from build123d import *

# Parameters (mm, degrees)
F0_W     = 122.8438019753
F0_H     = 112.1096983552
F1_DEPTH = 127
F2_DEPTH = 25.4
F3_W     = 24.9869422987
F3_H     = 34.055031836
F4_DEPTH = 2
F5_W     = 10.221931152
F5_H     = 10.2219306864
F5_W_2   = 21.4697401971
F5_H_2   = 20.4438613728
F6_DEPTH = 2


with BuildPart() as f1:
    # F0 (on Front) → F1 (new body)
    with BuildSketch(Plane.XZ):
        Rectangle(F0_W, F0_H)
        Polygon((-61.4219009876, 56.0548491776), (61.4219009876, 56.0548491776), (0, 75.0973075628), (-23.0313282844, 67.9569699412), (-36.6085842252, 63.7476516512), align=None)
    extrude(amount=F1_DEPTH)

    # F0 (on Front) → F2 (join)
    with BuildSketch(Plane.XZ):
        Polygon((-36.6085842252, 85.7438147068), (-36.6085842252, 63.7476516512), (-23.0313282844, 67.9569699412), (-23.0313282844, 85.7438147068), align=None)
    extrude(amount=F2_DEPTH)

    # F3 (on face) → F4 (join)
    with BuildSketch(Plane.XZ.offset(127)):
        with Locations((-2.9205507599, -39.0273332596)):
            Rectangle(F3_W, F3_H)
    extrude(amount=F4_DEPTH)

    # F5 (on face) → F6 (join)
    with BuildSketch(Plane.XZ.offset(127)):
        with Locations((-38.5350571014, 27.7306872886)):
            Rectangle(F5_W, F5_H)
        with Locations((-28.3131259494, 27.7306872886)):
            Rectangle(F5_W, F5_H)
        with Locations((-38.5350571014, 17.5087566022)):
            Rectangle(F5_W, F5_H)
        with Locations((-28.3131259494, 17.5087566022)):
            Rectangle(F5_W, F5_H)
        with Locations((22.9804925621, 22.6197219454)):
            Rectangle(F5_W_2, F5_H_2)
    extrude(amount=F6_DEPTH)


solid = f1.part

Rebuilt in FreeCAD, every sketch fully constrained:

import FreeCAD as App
import Part
import Sketcher
Q = App.Units.Quantity


def add_polygon(sketch, points):
    """Adds a closed chain of lines whose ends are joined by coincident constraints."""
    first, n = sketch.GeometryCount, len(points)
    for a, b in zip(points, points[1:] + points[:1]):
        sketch.addGeometry(Part.LineSegment(App.Vector(*a, 0), App.Vector(*b, 0)), False)
    for i in range(n):
        sketch.addConstraint(Sketcher.Constraint("Coincident", first + i, 2, first + (i + 1) % n, 1))

doc = App.newDocument("Part")
body = doc.addObject("PartDesign::Body", "Body")

sketch1 = body.newObject("Sketcher::SketchObject", "Sketch")
sketch1.AttachmentSupport = (doc.getObject("XZ_Plane"), [""])
sketch1.MapMode = "FlatFace"
add_polygon(sketch1, [(-61, 56), (-61, -56), (61, -56), (61, 56), (0, 75), (-23, 68), (-37, 64)])
sketch1.addConstraint(Sketcher.Constraint("Vertical", 0))
sketch1.addConstraint(Sketcher.Constraint("Horizontal", 1))
sketch1.addConstraint(Sketcher.Constraint("Vertical", 2))
sketch1.addConstraint(Sketcher.Constraint("Symmetric", 0, 2, 2, 2, -1, 1))
sketch1.addConstraint(Sketcher.Constraint("PointOnObject", 3, 2, -2))
sketch1.addConstraint(Sketcher.Constraint("Parallel", 4, 5))
sketch1.addConstraint(Sketcher.Constraint("Parallel", 5, 6))
sketch1.addConstraint(Sketcher.Constraint("Horizontal", 2, 2, 6, 2))
sketch1.addConstraint(Sketcher.Constraint("DistanceX", 1, 1, 1, 2, 122.843802))
sketch1.addConstraint(Sketcher.Constraint("DistanceY", 0, 2, 0, 1, 112.109698))
sketch1.addConstraint(Sketcher.Constraint("DistanceY", 0, 2, 5, 2, 119.802501))
sketch1.addConstraint(Sketcher.Constraint("Distance", 5, 14.214789))
sketch1.addConstraint(Sketcher.Constraint("Distance", 6, 25.978451))
pad1 = body.newObject("PartDesign::Pad", "Pad")
pad1.Profile = sketch1
pad1.Length = Q("5 in")

sketch2 = body.newObject("Sketcher::SketchObject", "Sketch001")
sketch2.AttachmentSupport = (doc.getObject("XZ_Plane"), [""])
sketch2.MapMode = "FlatFace"
add_polygon(sketch2, [(-37, 86), (-37, 64), (-23, 68), (-23, 86)])
sketch2.addConstraint(Sketcher.Constraint("Vertical", 0))
sketch2.addConstraint(Sketcher.Constraint("Vertical", 2))
sketch2.addConstraint(Sketcher.Constraint("Horizontal", 3))
sketch2.addConstraint(Sketcher.Constraint("Distance", 1, 14.214789))
sketch2.addConstraint(Sketcher.Constraint("DistanceX", 3, 2, 3, 1, 13.577256))
sketch2.addConstraint(Sketcher.Constraint("DistanceY", 0, 2, 0, 1, 21.996163))
sketch2.addConstraint(Sketcher.Constraint("DistanceY", -1, 1, 0, 2, 63.747652))
sketch2.addConstraint(Sketcher.Constraint("DistanceX", 1, 2, -1, 1, 23.031328))
pad2 = body.newObject("PartDesign::Pad", "Pad001")
pad2.Profile = sketch2
pad2.Length = Q("1 in")

sketch3 = body.newObject("Sketcher::SketchObject", "Sketch002")
sketch3.AttachmentSupport = (doc.getObject("XZ_Plane"), [""])
sketch3.MapMode = "FlatFace"
sketch3.AttachmentOffset = App.Placement(App.Vector(0, 0, 5 * 25.4), App.Rotation())
add_polygon(sketch3, [(-15, -22), (-15, -56), (10, -56), (10, -22)])
sketch3.addConstraint(Sketcher.Constraint("Vertical", 0))
sketch3.addConstraint(Sketcher.Constraint("Horizontal", 1))
sketch3.addConstraint(Sketcher.Constraint("Vertical", 2))
sketch3.addConstraint(Sketcher.Constraint("Horizontal", 3))
sketch3.addConstraint(Sketcher.Constraint("DistanceY", 0, 2, 0, 1, 34.055032))
sketch3.addConstraint(Sketcher.Constraint("DistanceX", 1, 1, 1, 2, 24.986942))
sketch3.addConstraint(Sketcher.Constraint("DistanceX", 0, 2, -1, 1, 15.414022))
sketch3.addConstraint(Sketcher.Constraint("DistanceY", 0, 2, -1, 1, 56.054849))
pad3 = body.newObject("PartDesign::Pad", "Pad002")
pad3.Profile = sketch3
pad3.Length = 2

sketch4 = body.newObject("Sketcher::SketchObject", "Sketch003")
sketch4.AttachmentSupport = (doc.getObject("XZ_Plane"), [""])
sketch4.MapMode = "FlatFace"
sketch4.AttachmentOffset = App.Placement(App.Vector(0, 0, 5 * 25.4), App.Rotation())
add_polygon(sketch4, [(-44, 33), (-44, 12), (-23, 12), (-23, 33)])
add_polygon(sketch4, [(12, 33), (12, 12), (34, 12), (34, 33)])
sketch4.addConstraint(Sketcher.Constraint("Vertical", 0))
sketch4.addConstraint(Sketcher.Constraint("Horizontal", 1))
sketch4.addConstraint(Sketcher.Constraint("Vertical", 2))
sketch4.addConstraint(Sketcher.Constraint("Horizontal", 3))
sketch4.addConstraint(Sketcher.Constraint("Vertical", 4))
sketch4.addConstraint(Sketcher.Constraint("Horizontal", 5))
sketch4.addConstraint(Sketcher.Constraint("Vertical", 6))
sketch4.addConstraint(Sketcher.Constraint("Horizontal", 7))
sketch4.addConstraint(Sketcher.Constraint("Horizontal", 1, 2, 4, 2))
sketch4.addConstraint(Sketcher.Constraint("Horizontal", 3, 2, 6, 2))
sketch4.addConstraint(Sketcher.Constraint("Equal", 3, 0))
sketch4.addConstraint(Sketcher.Constraint("DistanceX", 5, 1, 5, 2, 21.46974))
sketch4.addConstraint(Sketcher.Constraint("DistanceY", 0, 2, 0, 1, 20.443861))
sketch4.addConstraint(Sketcher.Constraint("DistanceY", -1, 1, 0, 2, 12.397791))
sketch4.addConstraint(Sketcher.Constraint("DistanceX", 1, 2, -1, 1, 23.20216))
sketch4.addConstraint(Sketcher.Constraint("DistanceX", -1, 1, 4, 2, 12.245622))
pad4 = body.newObject("PartDesign::Pad", "Pad003")
pad4.Profile = sketch4
pad4.Length = 2

doc.recompute()
